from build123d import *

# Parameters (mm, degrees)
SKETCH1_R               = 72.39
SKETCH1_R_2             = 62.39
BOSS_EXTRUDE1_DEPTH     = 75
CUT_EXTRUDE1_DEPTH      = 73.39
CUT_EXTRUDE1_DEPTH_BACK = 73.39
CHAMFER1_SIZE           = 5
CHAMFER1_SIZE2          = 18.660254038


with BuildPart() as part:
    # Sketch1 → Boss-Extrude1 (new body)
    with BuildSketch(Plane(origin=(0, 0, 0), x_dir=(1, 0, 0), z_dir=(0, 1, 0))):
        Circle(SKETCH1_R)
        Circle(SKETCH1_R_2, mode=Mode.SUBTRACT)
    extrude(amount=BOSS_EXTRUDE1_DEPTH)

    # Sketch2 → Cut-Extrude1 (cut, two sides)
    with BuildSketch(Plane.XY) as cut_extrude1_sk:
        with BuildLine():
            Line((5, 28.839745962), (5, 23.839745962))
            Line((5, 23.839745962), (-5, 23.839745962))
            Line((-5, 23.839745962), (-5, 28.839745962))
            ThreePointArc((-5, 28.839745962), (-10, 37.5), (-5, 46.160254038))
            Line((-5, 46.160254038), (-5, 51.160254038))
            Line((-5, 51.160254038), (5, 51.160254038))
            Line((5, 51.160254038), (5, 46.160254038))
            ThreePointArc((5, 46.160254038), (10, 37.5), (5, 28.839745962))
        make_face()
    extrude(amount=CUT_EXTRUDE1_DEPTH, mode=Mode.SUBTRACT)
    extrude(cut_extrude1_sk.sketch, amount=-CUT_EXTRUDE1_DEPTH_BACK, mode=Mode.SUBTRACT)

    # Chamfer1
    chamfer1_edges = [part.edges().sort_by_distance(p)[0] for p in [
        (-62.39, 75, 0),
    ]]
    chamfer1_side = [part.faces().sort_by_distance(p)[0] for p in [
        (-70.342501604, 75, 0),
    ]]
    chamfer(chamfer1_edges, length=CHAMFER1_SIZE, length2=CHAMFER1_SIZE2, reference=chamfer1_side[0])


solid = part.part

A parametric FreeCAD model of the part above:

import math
import FreeCAD as App
import Part
import Sketcher
Q = App.Units.Quantity


def edges_at(feature, points):
    """Names of the edges that pass closest to the given points."""
    edges = feature.Shape.Edges
    near = lambda p: min(range(len(edges)), key=lambda i: edges[i].distToShape(Part.Vertex(*p))[0])
    return sorted({f"Edge{near(p) + 1}" for p in points})

doc = App.newDocument("Part")
params = doc.addObject("Spreadsheet::Sheet", "Params")
for row, (alias, value) in enumerate([
    ("sketch1_diameter", "144.78 mm"),
    ("sketch1_diameter2", "124.78 mm"),
    ("pad1_length", "75 mm"),
    ("sketch2_radius", "10 mm"),
    ("sketch2_width", "10 mm"),
    ("sketch2_height", "5 mm"),
    ("chamfer_size", "5 mm"),
    ("chamfer_size2", "18.660254 mm"),
], start=1):
    params.set(f"A{row}", alias)
    params.set(f"B{row}", "=" + value)
    params.setAlias(f"B{row}", alias)

body = doc.addObject("PartDesign::Body", "Body")

# Sketch on XZ plane
sketch1 = body.newObject("Sketcher::SketchObject", "Sketch")
sketch1.AttachmentSupport = (doc.getObject("XZ_Plane"), [""])
sketch1.MapMode = "FlatFace"
sketch1.addGeometry([
    Part.Circle(App.Vector(0, 0, 0), App.Vector(0, 0, 1), 72),
    Part.Circle(App.Vector(0, 0, 0), App.Vector(0, 0, 1), 62),
], False)
sketch1.addConstraint([
    Sketcher.Constraint("Coincident", 0, 3, -1, 1),
    Sketcher.Constraint("Coincident", 1, 3, -1, 1),
    Sketcher.Constraint("Diameter", 0, Q("144.78 mm")),
    Sketcher.Constraint("Diameter", 1, Q("124.78 mm")),
])
sketch1.setExpression("Constraints[2]", "Params.sketch1_diameter")
sketch1.setExpression("Constraints[3]", "Params.sketch1_diameter2")
pad1 = body.newObject("PartDesign::Pad", "Pad")
pad1.Profile = sketch1
pad1.setExpression("Length", "Params.pad1_length")
pad1.Reversed = True

# Sketch on XY plane
sketch2 = body.newObject("Sketcher::SketchObject", "Sketch001")
sketch2.AttachmentSupport = (doc.getObject("XY_Plane"), [""])
sketch2.MapMode = "FlatFace"
sketch2.addGeometry([
    Part.LineSegment(App.Vector(5, 24, 0), App.Vector(5, 29, 0)),  # 0
    Part.ArcOfCircle(Part.Circle(App.Vector(0, 38, 0), App.Vector(0, 0, 1), 10), math.radians(-60), math.radians(60)),  # 1
    Part.LineSegment(App.Vector(5, 46, 0), App.Vector(5, 51, 0)),  # 2
    Part.LineSegment(App.Vector(5, 51, 0), App.Vector(-5, 51, 0)),  # 3
    Part.LineSegment(App.Vector(-5, 51, 0), App.Vector(-5, 46, 0)),  # 4
    Part.ArcOfCircle(Part.Circle(App.Vector(0, 38, 0), App.Vector(0, 0, 1), 10), math.radians(120), math.radians(240)),  # 5
    Part.LineSegment(App.Vector(-5, 29, 0), App.Vector(-5, 24, 0)),  # 6
    Part.LineSegment(App.Vector(-5, 24, 0), App.Vector(5, 24, 0)),  # 7
], False)
sketch2.addConstraint([
    Sketcher.Constraint("Coincident", 0, 2, 1, 1),
    Sketcher.Constraint("Coincident", 1, 2, 2, 1),
    Sketcher.Constraint("Coincident", 2, 2, 3, 1),
    Sketcher.Constraint("Coincident", 3, 2, 4, 1),
    Sketcher.Constraint("Coincident", 4, 2, 5, 1),
    Sketcher.Constraint("Coincident", 5, 2, 6, 1),
    Sketcher.Constraint("Coincident", 6, 2, 7, 1),
    Sketcher.Constraint("Coincident", 7, 2, 0, 1),
    Sketcher.Constraint("Vertical", 0),
    Sketcher.Constraint("Vertical", 2),
    Sketcher.Constraint("Horizontal", 3),
    Sketcher.Constraint("Vertical", 4),
    Sketcher.Constraint("Vertical", 6),
    Sketcher.Constraint("Horizontal", 7),
    Sketcher.Constraint("Coincident", 5, 3, 1, 3),
    Sketcher.Constraint("Equal", 1, 5),
    Sketcher.Constraint("Symmetric", 1, 2, 4, 2, -2),
    Sketcher.Constraint("Horizontal", 0, 2, 5, 2),
    Sketcher.Constraint("Vertical", 0, 2, 1, 2),
    Sketcher.Constraint("Equal", 0, 2),
    Sketcher.Constraint("Radius", 1, Q("10 mm")),
    Sketcher.Constraint("DistanceX", 3, 2, 3, 1, Q("10 mm")),
    Sketcher.Constraint("DistanceY", 0, 1, 0, 2, Q("5 mm")),
    Sketcher.Constraint("DistanceY", -1, 1, 1, 3, Q("37.5 mm")),
])
sketch2.setExpression("Constraints[20]", "Params.sketch2_radius")
sketch2.setExpression("Constraints[21]", "Params.sketch2_width")
sketch2.setExpression("Constraints[22]", "Params.sketch2_height")
pocket1 = body.newObject("PartDesign::Pocket", "Pocket")
pocket1.Profile = sketch2
pocket1.Type = "ThroughAll"
pocket1.Midplane = True
doc.recompute()

chamfer = body.newObject("PartDesign::Chamfer", "Chamfer")
chamfer.Base = (pocket1, edges_at(pocket1, [(-62.39, 75, 0)]))
chamfer.ChamferType = "Two distances"
chamfer.setExpression("Size", "Params.chamfer_size")
chamfer.setExpression("Size2", "Params.chamfer_size2")

doc.recompute()
